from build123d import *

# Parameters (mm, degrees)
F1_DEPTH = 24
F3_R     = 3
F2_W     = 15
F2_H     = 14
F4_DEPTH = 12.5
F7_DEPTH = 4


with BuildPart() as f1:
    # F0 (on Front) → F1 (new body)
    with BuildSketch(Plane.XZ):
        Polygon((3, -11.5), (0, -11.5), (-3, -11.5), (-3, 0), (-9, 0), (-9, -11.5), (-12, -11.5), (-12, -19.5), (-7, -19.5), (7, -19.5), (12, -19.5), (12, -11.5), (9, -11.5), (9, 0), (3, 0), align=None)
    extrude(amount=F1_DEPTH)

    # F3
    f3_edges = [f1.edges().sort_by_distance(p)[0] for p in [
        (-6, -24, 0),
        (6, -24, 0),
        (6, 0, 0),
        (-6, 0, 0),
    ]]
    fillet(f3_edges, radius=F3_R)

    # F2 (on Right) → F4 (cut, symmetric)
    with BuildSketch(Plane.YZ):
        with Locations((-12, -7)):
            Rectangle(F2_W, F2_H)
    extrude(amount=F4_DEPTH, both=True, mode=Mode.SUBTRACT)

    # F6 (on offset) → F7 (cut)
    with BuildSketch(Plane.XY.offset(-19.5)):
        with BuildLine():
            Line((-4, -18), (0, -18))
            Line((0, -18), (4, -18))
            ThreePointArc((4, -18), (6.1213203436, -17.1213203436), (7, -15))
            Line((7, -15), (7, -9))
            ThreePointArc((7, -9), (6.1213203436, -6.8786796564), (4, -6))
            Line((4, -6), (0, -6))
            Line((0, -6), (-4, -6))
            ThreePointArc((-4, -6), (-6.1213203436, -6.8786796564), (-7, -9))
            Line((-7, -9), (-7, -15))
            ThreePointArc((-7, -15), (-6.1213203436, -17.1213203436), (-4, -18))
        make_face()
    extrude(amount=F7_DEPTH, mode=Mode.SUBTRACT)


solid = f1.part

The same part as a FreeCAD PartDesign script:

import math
import FreeCAD as App
import Part
import Sketcher

V = App.Vector
Q = App.Units.Quantity


def edges_at(feature, points):
    """Names of the edges that pass closest to the given points."""
    edges = feature.Shape.Edges
    near = lambda p: min(range(len(edges)), key=lambda i: edges[i].distToShape(Part.Vertex(*p))[0])
    return sorted({f"Edge{near(p) + 1}" for p in points})

doc = App.newDocument("Part")
body = doc.addObject("PartDesign::Body", "Body")

# Sketch on XZ plane
sketch1 = body.newObject("Sketcher::SketchObject", "Sketch")
sketch1.AttachmentSupport = (doc.getObject("XZ_Plane"), [""])
sketch1.MapMode = "FlatFace"
sketch1.addGeometry(Part.LineSegment(V(3, -11.5, 0), V(-3, -11.5, 0)), False)
sketch1.addGeometry(Part.LineSegment(V(-3, -11.5, 0), V(-3, 0, 0)), False)
sketch1.addGeometry(Part.LineSegment(V(-3, 0, 0), V(-9, 0, 0)), False)
sketch1.addGeometry(Part.LineSegment(V(-9, 0, 0), V(-9, -11.5, 0)), False)
sketch1.addGeometry(Part.LineSegment(V(-9, -11.5, 0), V(-12, -11.5, 0)), False)
sketch1.addGeometry(Part.LineSegment(V(-12, -11.5, 0), V(-12, -19.5, 0)), False)
sketch1.addGeometry(Part.LineSegment(V(-12, -19.5, 0), V(12, -19.5, 0)), False)
sketch1.addGeometry(Part.LineSegment(V(12, -19.5, 0), V(12, -11.5, 0)), False)
sketch1.addGeometry(Part.LineSegment(V(12, -11.5, 0), V(9, -11.5, 0)), False)
sketch1.addGeometry(Part.LineSegment(V(9, -11.5, 0), V(9, 0, 0)), False)
sketch1.addGeometry(Part.LineSegment(V(9, 0, 0), V(3, 0, 0)), False)
sketch1.addGeometry(Part.LineSegment(V(3, 0, 0), V(3, -11.5, 0)), False)
sketch1.addConstraint(Sketcher.Constraint("Coincident", 0, 2, 1, 1))
sketch1.addConstraint(Sketcher.Constraint("Coincident", 1, 2, 2, 1))
sketch1.addConstraint(Sketcher.Constraint("Coincident", 2, 2, 3, 1))
sketch1.addConstraint(Sketcher.Constraint("Coincident", 3, 2, 4, 1))
sketch1.addConstraint(Sketcher.Constraint("Coincident", 4, 2, 5, 1))
sketch1.addConstraint(Sketcher.Constraint("Coincident", 5, 2, 6, 1))
sketch1.addConstraint(Sketcher.Constraint("Coincident", 6, 2, 7, 1))
sketch1.addConstraint(Sketcher.Constraint("Coincident", 7, 2, 8, 1))
sketch1.addConstraint(Sketcher.Constraint("Coincident", 8, 2, 9, 1))
sketch1.addConstraint(Sketcher.Constraint("Coincident", 9, 2, 10, 1))
sketch1.addConstraint(Sketcher.Constraint("Coincident", 10, 2, 11, 1))
sketch1.addConstraint(Sketcher.Constraint("Coincident", 11, 2, 0, 1))
sketch1.addConstraint(Sketcher.Constraint("Horizontal", 0))
sketch1.addConstraint(Sketcher.Constraint("Vertical", 1))
sketch1.addConstraint(Sketcher.Constraint("Horizontal", 2))
sketch1.addConstraint(Sketcher.Constraint("Vertical", 3))
sketch1.addConstraint(Sketcher.Constraint("Horizontal", 4))
sketch1.addConstraint(Sketcher.Constraint("Vertical", 5))
sketch1.addConstraint(Sketcher.Constraint("Horizontal", 6))
sketch1.addConstraint(Sketcher.Constraint("Vertical", 7))
sketch1.addConstraint(Sketcher.Constraint("Horizontal", 8))
sketch1.addConstraint(Sketcher.Constraint("Vertical", 9))
sketch1.addConstraint(Sketcher.Constraint("Horizontal", 10))
sketch1.addConstraint(Sketcher.Constraint("Vertical", 11))
sketch1.addConstraint(Sketcher.Constraint("Symmetric", 2, 2, 9, 2, -1, 1))
sketch1.addConstraint(Sketcher.Constraint("Symmetric", 4, 2, 7, 2, -2))
sketch1.addConstraint(Sketcher.Constraint("Symmetric", 1, 2, 10, 2, -2))
sketch1.addConstraint(Sketcher.Constraint("Horizontal", 0, 2, 3, 2))
sketch1.addConstraint(Sketcher.Constraint("Equal", 0, 2))
sketch1.addConstraint(Sketcher.Constraint("DistanceX", 0, 2, 0, 1, Q("6 mm")))
sketch1.addConstraint(Sketcher.Constraint("DistanceX", 4, 2, 4, 1, Q("3 mm")))
sketch1.addConstraint(Sketcher.Constraint("DistanceY", 5, 2, 5, 1, Q("8 mm")))
sketch1.addConstraint(Sketcher.Constraint("DistanceY", 1, 1, 1, 2, Q("11.5 mm")))
pad1 = body.newObject("PartDesign::Pad", "Pad")
pad1.Profile = sketch1
pad1.Length = 24
doc.recompute()

fillet = body.newObject("PartDesign::Fillet", "Fillet")
fillet.Base = (pad1, edges_at(pad1, [
    (-6, -24, 0),
    (6, -24, 0),
    (6, 0, 0),
    (-6, 0, 0),
]))
fillet.Radius = 3

# Sketch on YZ plane
sketch2 = body.newObject("Sketcher::SketchObject", "Sketch001")
sketch2.AttachmentSupport = (doc.getObject("YZ_Plane"), [""])
sketch2.MapMode = "FlatFace"
sketch2.addGeometry(Part.LineSegment(V(-20, 0, 0), V(-20, -14, 0)), False)
sketch2.addGeometry(Part.LineSegment(V(-20, -14, 0), V(-4, -14, 0)), False)
sketch2.addGeometry(Part.LineSegment(V(-4, -14, 0), V(-4, 0, 0)), False)
sketch2.addGeometry(Part.LineSegment(V(-4, 0, 0), V(-20, 0, 0)), False)
sketch2.addConstraint(Sketcher.Constraint("Coincident", 0, 2, 1, 1))
sketch2.addConstraint(Sketcher.Constraint("Coincident", 1, 2, 2, 1))
sketch2.addConstraint(Sketcher.Constraint("Coincident", 2, 2, 3, 1))
sketch2.addConstraint(Sketcher.Constraint("Coincident", 3, 2, 0, 1))
sketch2.addConstraint(Sketcher.Constraint("Vertical", 0))
sketch2.addConstraint(Sketcher.Constraint("Horizontal", 1))
sketch2.addConstraint(Sketcher.Constraint("Vertical", 2))
sketch2.addConstraint(Sketcher.Constraint("Horizontal", 3))
sketch2.addConstraint(Sketcher.Constraint("PointOnObject", 2, 2, -1))
sketch2.addConstraint(Sketcher.Constraint("DistanceX", 1, 1, 1, 2, Q("15 mm")))
sketch2.addConstraint(Sketcher.Constraint("DistanceY", 0, 2, 0, 1, Q("14 mm")))
sketch2.addConstraint(Sketcher.Constraint("DistanceX", 0, 2, -1, 1, Q("19.5 mm")))
pocket1 = body.newObject("PartDesign::Pocket", "Pocket")
pocket1.Profile = sketch2
pocket1.Length = 25
pocket1.Midplane = True

# Sketch on XY plane
sketch3 = body.newObject("Sketcher::SketchObject", "Sketch002")
sketch3.AttachmentSupport = (doc.getObject("XY_Plane"), [""])
sketch3.MapMode = "FlatFace"
sketch3.AttachmentOffset = App.Placement(V(0, 0, -19.5), App.Rotation())
sketch3.addGeometry(Part.LineSegment(V(-4, -18, 0), V(4, -18, 0)), False)
sketch3.addGeometry(Part.ArcOfCircle(Part.Circle(V(4, -15, 0), V(0, 0, 1), 3), math.radians(-90), math.radians(0)), False)
sketch3.addGeometry(Part.LineSegment(V(7, -15, 0), V(7, -9, 0)), False)
sketch3.addGeometry(Part.ArcOfCircle(Part.Circle(V(4, -9, 0), V(0, 0, 1), 3), math.radians(0), math.radians(90)), False)
sketch3.addGeometry(Part.LineSegment(V(4, -6, 0), V(-4, -6, 0)), False)
sketch3.addGeometry(Part.ArcOfCircle(Part.Circle(V(-4, -9, 0), V(0, 0, 1), 3), math.radians(90), math.radians(180)), False)
sketch3.addGeometry(Part.LineSegment(V(-7, -9, 0), V(-7, -15, 0)), False)
sketch3.addGeometry(Part.ArcOfCircle(Part.Circle(V(-4, -15, 0), V(0, 0, 1), 3), math.radians(180), math.radians(270)), False)
sketch3.addConstraint(Sketcher.Constraint("Tangent", 0, 2, 1, 1))
sketch3.addConstraint(Sketcher.Constraint("Tangent", 1, 2, 2, 1))
sketch3.addConstraint(Sketcher.Constraint("Tangent", 2, 2, 3, 1))
sketch3.addConstraint(Sketcher.Constraint("Tangent", 3, 2, 4, 1))
sketch3.addConstraint(Sketcher.Constraint("Tangent", 4, 2, 5, 1))
sketch3.addConstraint(Sketcher.Constraint("Tangent", 5, 2, 6, 1))
sketch3.addConstraint(Sketcher.Constraint("Tangent", 6, 2, 7, 1))
sketch3.addConstraint(Sketcher.Constraint("Tangent", 7, 2, 0, 1))
sketch3.addConstraint(Sketcher.Constraint("Horizontal", 0))
sketch3.addConstraint(Sketcher.Constraint("Vertical", 2))
sketch3.addConstraint(Sketcher.Constraint("Horizontal", 4))
sketch3.addConstraint(Sketcher.Constraint("Vertical", 6))
sketch3.addConstraint(Sketcher.Constraint("Equal", 1, 3))
sketch3.addConstraint(Sketcher.Constraint("Equal", 3, 5))
sketch3.addConstraint(Sketcher.Constraint("Equal", 5, 7))
sketch3.addConstraint(Sketcher.Constraint("Radius", 1, Q("3 mm")))
sketch3.addConstraint(Sketcher.Constraint("DistanceX", 0, 1, 0, 2, Q("8 mm")))
sketch3.addConstraint(Sketcher.Constraint("DistanceY", 2, 1, 2, 2, Q("6 mm")))
sketch3.addConstraint(Sketcher.Constraint("DistanceX", -1, 1, 1, 3, Q("4 mm")))
sketch3.addConstraint(Sketcher.Constraint("DistanceY", 1, 3, -1, 1, Q("15 mm")))
pocket2 = body.newObject("PartDesign::Pocket", "Pocket001")
pocket2.Profile = sketch3
pocket2.Length = 4
pocket2.Reversed = True

doc.recompute()
